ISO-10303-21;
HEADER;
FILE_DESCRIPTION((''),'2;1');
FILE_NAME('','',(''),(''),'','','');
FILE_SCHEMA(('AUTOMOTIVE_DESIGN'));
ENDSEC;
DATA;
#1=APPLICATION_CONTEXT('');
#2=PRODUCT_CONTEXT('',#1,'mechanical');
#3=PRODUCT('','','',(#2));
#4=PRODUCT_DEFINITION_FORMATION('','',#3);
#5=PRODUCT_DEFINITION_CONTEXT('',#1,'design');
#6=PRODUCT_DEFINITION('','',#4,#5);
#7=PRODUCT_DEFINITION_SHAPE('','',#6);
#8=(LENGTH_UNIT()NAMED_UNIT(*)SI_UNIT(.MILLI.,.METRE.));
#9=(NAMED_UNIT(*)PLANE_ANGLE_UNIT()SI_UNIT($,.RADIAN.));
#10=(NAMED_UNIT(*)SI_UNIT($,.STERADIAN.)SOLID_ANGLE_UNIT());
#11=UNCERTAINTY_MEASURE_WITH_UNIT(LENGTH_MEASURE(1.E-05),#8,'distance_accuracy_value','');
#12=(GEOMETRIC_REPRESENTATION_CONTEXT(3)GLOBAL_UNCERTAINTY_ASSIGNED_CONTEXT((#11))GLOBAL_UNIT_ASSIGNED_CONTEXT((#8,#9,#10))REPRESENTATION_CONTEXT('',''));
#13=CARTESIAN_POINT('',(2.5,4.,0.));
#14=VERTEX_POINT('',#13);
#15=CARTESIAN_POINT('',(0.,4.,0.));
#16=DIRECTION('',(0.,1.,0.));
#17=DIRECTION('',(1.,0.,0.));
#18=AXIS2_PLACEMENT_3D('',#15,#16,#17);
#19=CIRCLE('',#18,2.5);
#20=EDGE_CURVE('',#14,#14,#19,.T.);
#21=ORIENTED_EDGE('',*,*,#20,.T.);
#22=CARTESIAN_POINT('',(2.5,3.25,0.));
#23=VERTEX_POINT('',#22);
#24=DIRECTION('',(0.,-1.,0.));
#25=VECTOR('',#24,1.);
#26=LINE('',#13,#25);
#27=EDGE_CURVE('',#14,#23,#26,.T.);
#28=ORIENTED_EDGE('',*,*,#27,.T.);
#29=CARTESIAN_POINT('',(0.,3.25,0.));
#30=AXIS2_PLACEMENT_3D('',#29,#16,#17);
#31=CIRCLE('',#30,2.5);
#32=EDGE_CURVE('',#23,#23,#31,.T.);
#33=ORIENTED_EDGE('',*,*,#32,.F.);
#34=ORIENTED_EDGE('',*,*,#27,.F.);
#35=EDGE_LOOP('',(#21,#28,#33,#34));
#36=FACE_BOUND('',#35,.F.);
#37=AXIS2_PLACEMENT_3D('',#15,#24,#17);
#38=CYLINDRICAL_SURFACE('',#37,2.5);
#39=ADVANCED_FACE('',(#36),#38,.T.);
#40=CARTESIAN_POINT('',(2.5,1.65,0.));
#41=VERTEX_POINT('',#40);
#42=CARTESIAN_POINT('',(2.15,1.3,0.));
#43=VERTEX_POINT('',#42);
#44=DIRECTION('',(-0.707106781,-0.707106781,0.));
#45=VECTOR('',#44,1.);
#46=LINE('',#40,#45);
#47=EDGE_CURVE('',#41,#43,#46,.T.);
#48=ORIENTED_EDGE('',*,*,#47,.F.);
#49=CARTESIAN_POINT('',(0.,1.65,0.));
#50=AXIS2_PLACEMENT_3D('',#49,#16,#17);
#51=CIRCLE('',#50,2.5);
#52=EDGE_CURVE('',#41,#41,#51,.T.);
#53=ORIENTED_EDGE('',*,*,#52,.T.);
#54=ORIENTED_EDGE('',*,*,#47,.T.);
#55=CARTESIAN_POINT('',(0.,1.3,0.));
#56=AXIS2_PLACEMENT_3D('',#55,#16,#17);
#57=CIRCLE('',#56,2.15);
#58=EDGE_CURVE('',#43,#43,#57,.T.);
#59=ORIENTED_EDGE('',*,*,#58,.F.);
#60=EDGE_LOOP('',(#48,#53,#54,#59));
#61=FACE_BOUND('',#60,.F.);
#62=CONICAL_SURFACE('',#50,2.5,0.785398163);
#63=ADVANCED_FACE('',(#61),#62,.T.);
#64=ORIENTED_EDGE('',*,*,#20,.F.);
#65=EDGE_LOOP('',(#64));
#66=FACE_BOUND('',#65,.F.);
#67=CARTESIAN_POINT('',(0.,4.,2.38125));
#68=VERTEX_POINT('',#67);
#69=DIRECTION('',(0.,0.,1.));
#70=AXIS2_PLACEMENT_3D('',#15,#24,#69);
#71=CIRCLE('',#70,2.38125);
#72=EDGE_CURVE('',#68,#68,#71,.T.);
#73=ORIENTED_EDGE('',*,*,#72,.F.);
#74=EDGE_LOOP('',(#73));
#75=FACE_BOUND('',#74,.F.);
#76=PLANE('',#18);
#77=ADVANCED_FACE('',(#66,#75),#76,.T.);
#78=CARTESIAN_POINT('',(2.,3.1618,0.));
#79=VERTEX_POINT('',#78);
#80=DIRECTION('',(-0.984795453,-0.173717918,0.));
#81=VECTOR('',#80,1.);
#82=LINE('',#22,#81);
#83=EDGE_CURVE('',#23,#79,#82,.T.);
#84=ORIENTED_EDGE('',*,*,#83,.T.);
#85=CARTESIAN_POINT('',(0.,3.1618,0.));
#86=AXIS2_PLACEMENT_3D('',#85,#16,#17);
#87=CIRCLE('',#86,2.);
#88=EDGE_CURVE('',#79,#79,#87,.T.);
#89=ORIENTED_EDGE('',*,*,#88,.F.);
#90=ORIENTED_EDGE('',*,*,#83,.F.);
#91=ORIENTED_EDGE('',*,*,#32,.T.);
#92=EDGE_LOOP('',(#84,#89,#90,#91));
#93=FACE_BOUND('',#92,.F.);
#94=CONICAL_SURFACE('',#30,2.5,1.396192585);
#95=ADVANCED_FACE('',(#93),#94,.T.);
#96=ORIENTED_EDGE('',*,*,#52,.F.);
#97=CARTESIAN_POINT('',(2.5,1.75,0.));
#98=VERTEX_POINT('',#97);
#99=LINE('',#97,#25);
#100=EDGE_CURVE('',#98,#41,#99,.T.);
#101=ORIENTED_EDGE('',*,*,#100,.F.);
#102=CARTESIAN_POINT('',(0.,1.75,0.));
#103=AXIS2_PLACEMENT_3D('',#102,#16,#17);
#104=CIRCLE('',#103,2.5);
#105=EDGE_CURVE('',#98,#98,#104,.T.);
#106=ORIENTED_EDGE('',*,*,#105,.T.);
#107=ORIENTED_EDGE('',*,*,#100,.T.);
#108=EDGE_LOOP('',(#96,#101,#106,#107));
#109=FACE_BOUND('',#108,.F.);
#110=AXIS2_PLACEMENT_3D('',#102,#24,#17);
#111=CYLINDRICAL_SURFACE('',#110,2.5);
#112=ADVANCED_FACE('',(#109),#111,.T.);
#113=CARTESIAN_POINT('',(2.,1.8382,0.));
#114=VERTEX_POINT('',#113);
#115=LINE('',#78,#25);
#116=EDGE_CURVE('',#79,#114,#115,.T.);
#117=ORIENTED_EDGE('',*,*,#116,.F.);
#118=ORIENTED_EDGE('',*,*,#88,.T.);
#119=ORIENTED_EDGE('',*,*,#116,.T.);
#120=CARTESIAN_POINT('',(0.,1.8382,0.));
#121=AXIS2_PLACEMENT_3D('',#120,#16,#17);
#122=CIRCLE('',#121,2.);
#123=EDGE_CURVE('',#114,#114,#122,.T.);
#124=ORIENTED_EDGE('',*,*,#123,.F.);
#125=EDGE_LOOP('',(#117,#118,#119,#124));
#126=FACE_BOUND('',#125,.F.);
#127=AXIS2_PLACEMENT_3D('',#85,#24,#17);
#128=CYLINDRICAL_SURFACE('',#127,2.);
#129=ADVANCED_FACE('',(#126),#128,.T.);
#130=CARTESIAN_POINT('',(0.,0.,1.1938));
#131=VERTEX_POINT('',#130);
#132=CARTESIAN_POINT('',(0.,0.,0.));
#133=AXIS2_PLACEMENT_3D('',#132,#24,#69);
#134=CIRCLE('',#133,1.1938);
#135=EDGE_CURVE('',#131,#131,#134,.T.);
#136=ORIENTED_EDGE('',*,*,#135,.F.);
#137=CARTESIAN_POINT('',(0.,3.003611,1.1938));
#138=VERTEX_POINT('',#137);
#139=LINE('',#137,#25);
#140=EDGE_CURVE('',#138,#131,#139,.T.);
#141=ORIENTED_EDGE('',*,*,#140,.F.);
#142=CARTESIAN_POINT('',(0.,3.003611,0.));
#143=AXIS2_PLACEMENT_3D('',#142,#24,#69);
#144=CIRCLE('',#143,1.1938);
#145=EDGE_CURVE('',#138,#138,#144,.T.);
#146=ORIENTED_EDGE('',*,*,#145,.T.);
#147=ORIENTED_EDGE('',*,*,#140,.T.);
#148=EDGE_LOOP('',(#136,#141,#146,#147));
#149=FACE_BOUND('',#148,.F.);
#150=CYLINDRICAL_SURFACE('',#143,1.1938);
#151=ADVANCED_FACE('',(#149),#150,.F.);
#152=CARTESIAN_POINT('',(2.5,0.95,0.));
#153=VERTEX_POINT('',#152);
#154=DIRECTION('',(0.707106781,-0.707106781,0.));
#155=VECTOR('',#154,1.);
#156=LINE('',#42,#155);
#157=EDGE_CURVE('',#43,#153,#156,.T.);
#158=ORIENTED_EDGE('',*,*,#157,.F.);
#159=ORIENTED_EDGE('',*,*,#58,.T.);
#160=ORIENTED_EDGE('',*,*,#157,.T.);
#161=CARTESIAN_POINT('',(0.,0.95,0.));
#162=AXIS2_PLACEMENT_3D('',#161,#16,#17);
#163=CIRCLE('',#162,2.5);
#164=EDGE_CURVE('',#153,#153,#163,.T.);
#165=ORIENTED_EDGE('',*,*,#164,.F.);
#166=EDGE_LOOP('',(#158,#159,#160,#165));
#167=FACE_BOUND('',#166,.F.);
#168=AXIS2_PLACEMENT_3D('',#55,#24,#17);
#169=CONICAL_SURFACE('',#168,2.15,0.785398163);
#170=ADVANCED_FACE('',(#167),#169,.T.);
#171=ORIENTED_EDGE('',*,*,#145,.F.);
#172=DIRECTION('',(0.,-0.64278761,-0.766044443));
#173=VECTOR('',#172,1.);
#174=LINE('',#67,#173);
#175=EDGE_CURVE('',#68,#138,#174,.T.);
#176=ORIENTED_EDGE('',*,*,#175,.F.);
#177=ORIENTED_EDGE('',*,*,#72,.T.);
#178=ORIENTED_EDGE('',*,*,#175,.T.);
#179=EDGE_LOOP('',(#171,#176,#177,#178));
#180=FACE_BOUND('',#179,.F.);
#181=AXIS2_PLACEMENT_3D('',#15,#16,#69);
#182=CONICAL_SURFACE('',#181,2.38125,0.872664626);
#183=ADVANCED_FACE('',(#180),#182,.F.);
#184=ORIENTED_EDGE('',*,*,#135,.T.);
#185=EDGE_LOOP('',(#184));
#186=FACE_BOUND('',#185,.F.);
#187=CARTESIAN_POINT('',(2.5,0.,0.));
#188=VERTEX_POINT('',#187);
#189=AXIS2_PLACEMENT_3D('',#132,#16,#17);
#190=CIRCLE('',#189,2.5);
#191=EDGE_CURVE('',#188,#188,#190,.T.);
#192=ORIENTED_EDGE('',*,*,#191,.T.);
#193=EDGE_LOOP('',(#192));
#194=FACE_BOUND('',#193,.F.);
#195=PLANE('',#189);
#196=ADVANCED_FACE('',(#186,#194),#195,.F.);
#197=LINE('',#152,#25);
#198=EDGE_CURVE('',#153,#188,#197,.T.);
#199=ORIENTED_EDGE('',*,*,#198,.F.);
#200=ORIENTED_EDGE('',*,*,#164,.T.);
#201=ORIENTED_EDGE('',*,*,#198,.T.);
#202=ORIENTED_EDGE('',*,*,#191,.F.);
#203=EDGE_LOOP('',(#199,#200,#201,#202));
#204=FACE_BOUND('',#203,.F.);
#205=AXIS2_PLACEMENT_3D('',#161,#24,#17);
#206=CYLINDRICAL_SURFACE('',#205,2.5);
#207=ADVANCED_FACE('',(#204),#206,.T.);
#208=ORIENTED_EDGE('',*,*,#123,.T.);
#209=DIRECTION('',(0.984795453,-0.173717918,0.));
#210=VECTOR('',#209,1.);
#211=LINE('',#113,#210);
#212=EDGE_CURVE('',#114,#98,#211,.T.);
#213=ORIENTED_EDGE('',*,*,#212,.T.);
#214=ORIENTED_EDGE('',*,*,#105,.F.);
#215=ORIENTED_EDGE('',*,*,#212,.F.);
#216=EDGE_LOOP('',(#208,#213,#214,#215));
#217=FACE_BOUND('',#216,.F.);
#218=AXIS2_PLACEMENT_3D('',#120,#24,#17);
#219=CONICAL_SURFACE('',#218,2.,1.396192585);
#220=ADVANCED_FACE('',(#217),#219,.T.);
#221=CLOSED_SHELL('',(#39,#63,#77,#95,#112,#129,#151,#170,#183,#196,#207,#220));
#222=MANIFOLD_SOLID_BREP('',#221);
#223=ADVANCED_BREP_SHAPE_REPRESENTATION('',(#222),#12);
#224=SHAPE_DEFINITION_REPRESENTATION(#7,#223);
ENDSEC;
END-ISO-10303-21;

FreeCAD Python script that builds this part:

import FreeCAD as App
import Part
import Sketcher

doc = App.newDocument("Part")
params = doc.addObject("Spreadsheet::Sheet", "Params")
for row, (alias, value) in enumerate([
    ("sketch1_height", "0.75 mm"),
    ("sketch1_height2", "4 mm"),
    ("sketch1_width", "2.5 mm"),
    ("revolution_angle", "360 deg"),
    ("hole_diameter", "2.3876 mm"),
    ("hole_csink_diameter", "4.7625 mm"),
], start=1):
    params.set(f"A{row}", alias)
    params.set(f"B{row}", "=" + value)
    params.setAlias(f"B{row}", alias)

body = doc.addObject("PartDesign::Body", "Body")

# Sketch on XY plane
sketch1 = body.newObject("Sketcher::SketchObject", "Sketch")
sketch1.AttachmentSupport = (doc.getObject("XY_Plane"), [""])
sketch1.MapMode = "FlatFace"
sketch1.addGeometry([
    Part.LineSegment(App.Vector(0, 4, 0), App.Vector(0, 0, 0)),  # 0
    Part.LineSegment(App.Vector(0, 0, 0), App.Vector(2.5, 0, 0)),  # 1
    Part.LineSegment(App.Vector(2.5, 0, 0), App.Vector(2.5, 0.95, 0)),  # 2
    Part.LineSegment(App.Vector(2.5, 0.95, 0), App.Vector(2.15, 1.3, 0)),  # 3
    Part.LineSegment(App.Vector(2.15, 1.3, 0), App.Vector(2.5, 1.65, 0)),  # 4
    Part.LineSegment(App.Vector(2.5, 1.65, 0), App.Vector(2.5, 1.75, 0)),  # 5
    Part.LineSegment(App.Vector(2.5, 1.75, 0), App.Vector(2, 1.8382, 0)),  # 6
    Part.LineSegment(App.Vector(2, 1.8382, 0), App.Vector(2, 3.1618, 0)),  # 7
    Part.LineSegment(App.Vector(2, 3.1618, 0), App.Vector(2.5, 3.25, 0)),  # 8
    Part.LineSegment(App.Vector(2.5, 3.25, 0), App.Vector(2.5, 4, 0)),  # 9
    Part.LineSegment(App.Vector(2.5, 4, 0), App.Vector(0, 4, 0)),  # 10
], False)
sketch1.addConstraint([
    Sketcher.Constraint("Coincident", 0, 2, 1, 1),
    Sketcher.Constraint("Coincident", 1, 2, 2, 1),
    Sketcher.Constraint("Coincident", 2, 2, 3, 1),
    Sketcher.Constraint("Coincident", 3, 2, 4, 1),
    Sketcher.Constraint("Coincident", 4, 2, 5, 1),
    Sketcher.Constraint("Coincident", 5, 2, 6, 1),
    Sketcher.Constraint("Coincident", 6, 2, 7, 1),
    Sketcher.Constraint("Coincident", 7, 2, 8, 1),
    Sketcher.Constraint("Coincident", 8, 2, 9, 1),
    Sketcher.Constraint("Coincident", 9, 2, 10, 1),
    Sketcher.Constraint("Coincident", 10, 2, 0, 1),
    Sketcher.Constraint("Vertical", 0),
    Sketcher.Constraint("Horizontal", 1),
    Sketcher.Constraint("Vertical", 2),
    Sketcher.Constraint("Vertical", 5),
    Sketcher.Constraint("Vertical", 7),
    Sketcher.Constraint("Vertical", 9),
    Sketcher.Constraint("Horizontal", 10),
    Sketcher.Constraint("Coincident", 0, 2, -1, 1),
    Sketcher.Constraint("Perpendicular", 3, 4),
    Sketcher.Constraint("Vertical", 2, 2, 4, 2),
    Sketcher.Constraint("Vertical", 5, 2, 8, 2),
    Sketcher.Constraint("Equal", 3, 4),
    Sketcher.Constraint("Equal", 6, 8),
    Sketcher.Constraint("DistanceY", 9, 1, 9, 2, 0.75),
    Sketcher.Constraint("DistanceY", -1, 1, 3, 2, 1.3),
    Sketcher.Constraint("DistanceY", 0, 2, 0, 1, 4.0),
    Sketcher.Constraint("DistanceY", -1, 1, 5, 2, 1.75),
    Sketcher.Constraint("DistanceX", 3, 2, 2, 2, 0.35),
    Sketcher.Constraint("DistanceX", 1, 1, 1, 2, 2.5),
    Sketcher.Constraint("DistanceY", 7, 1, 7, 2, 1.3236),
    Sketcher.Constraint("DistanceX", -1, 1, 6, 2, 2.0),
])
sketch1.setExpression("Constraints[24]", "Params.sketch1_height")
sketch1.setExpression("Constraints[26]", "Params.sketch1_height2")
sketch1.setExpression("Constraints[29]", "Params.sketch1_width")
revolution = body.newObject("PartDesign::Revolution", "Revolution")
revolution.Profile = sketch1
revolution.ReferenceAxis = (sketch1, ["V_Axis"])
revolution.setExpression("Angle", "Params.revolution_angle")

# Sketch on XZ plane
sketch2 = body.newObject("Sketcher::SketchObject", "Sketch001")
sketch2.AttachmentSupport = (doc.getObject("XZ_Plane"), [""])
sketch2.MapMode = "FlatFace"
sketch2.AttachmentOffset = App.Placement(App.Vector(0, 0, -4), App.Rotation())
sketch2.addGeometry(Part.Circle(App.Vector(0, 0, 0), App.Vector(0, 0, 1), 1.1938), False)
sketch2.addConstraint([
    Sketcher.Constraint("Coincident", 0, 3, -1, 1),
    Sketcher.Constraint("Diameter", 0, 2.3876),
])
doc.recompute()
hole = body.newObject("PartDesign::Hole", "Hole")
hole.Profile = sketch2
hole.ThreadType = "None"
hole.setExpression("Diameter", "Params.hole_diameter")
hole.DepthType = "ThroughAll"
hole.HoleCutType = "Countersink"
hole.setExpression("HoleCutDiameter", "Params.hole_csink_diameter")
hole.HoleCutCountersinkAngle = 100
hole.Reversed = True

doc.recompute()
